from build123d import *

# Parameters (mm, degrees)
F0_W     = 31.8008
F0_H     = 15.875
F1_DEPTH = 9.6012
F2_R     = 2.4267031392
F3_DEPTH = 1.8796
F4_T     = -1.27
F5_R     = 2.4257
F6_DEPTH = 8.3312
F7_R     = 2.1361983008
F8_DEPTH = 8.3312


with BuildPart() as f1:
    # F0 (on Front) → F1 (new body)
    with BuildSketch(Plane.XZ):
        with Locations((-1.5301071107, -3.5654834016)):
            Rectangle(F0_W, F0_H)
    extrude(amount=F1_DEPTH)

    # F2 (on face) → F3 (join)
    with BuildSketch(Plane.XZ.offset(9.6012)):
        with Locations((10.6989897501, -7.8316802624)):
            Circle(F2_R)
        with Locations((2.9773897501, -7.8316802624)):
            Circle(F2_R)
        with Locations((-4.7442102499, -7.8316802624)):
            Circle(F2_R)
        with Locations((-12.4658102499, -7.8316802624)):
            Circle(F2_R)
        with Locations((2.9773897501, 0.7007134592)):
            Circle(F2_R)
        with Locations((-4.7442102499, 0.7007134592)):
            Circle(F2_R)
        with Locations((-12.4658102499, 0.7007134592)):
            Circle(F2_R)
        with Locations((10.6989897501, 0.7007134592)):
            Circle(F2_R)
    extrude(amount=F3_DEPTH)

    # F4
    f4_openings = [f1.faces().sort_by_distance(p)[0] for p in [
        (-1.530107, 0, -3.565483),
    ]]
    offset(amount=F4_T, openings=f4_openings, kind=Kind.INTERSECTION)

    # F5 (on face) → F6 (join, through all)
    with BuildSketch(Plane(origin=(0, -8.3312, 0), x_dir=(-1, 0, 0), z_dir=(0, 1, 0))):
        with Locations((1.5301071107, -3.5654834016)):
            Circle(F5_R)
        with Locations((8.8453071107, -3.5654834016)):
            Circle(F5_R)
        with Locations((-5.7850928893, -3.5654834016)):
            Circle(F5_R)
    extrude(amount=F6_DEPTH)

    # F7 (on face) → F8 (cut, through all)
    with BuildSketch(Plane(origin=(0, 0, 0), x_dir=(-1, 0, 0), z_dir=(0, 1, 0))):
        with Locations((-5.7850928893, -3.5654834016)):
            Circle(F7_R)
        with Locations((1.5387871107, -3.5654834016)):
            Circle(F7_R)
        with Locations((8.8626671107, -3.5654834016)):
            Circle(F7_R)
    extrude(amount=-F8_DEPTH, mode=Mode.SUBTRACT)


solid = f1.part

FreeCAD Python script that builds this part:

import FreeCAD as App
import Part
import Sketcher
from FreeCAD import Vector
Q = App.Units.Quantity


def faces_at(feature, points):
    """Names of the faces that lie closest to the given points."""
    faces = feature.Shape.Faces
    near = lambda p: min(range(len(faces)), key=lambda i: faces[i].distToShape(Part.Vertex(*p))[0])
    return sorted({f"Face{near(p) + 1}" for p in points})

doc = App.newDocument("Part")
body = doc.addObject("PartDesign::Body", "Body")

# Sketch on XZ plane
sketch1 = body.newObject("Sketcher::SketchObject", "Sketch")
sketch1.AttachmentSupport = (doc.getObject("XZ_Plane"), [""])
sketch1.MapMode = "FlatFace"
sketch1.addGeometry([
    Part.LineSegment(Vector(-17.430507, 4.372017, 0), Vector(-17.430507, -11.502983, 0)),
    Part.LineSegment(Vector(-17.430507, -11.502983, 0), Vector(14.370293, -11.502983, 0)),
    Part.LineSegment(Vector(14.370293, -11.502983, 0), Vector(14.370293, 4.372017, 0)),
    Part.LineSegment(Vector(14.370293, 4.372017, 0), Vector(-17.430507, 4.372017, 0)),
], False)
sketch1.addConstraint([
    Sketcher.Constraint("Coincident", 0, 2, 1, 1),
    Sketcher.Constraint("Coincident", 1, 2, 2, 1),
    Sketcher.Constraint("Coincident", 2, 2, 3, 1),
    Sketcher.Constraint("Coincident", 3, 2, 0, 1),
    Sketcher.Constraint("Vertical", 0),
    Sketcher.Constraint("Horizontal", 1),
    Sketcher.Constraint("Vertical", 2),
    Sketcher.Constraint("Horizontal", 3),
    Sketcher.Constraint("DistanceX", 1, 1, 1, 2, Q("1.252 in")),
    Sketcher.Constraint("DistanceY", 0, 2, 0, 1, Q("0.625 in")),
    Sketcher.Constraint("DistanceX", 0, 2, -1, 1, Q("17.430507 mm")),
    Sketcher.Constraint("DistanceY", 0, 2, -1, 1, Q("11.502983 mm")),
])
pad1 = body.newObject("PartDesign::Pad", "Pad")
pad1.Profile = sketch1
pad1.Length = Q("0.378 in")

# Sketch on XZ plane
sketch2 = body.newObject("Sketcher::SketchObject", "Sketch001")
sketch2.AttachmentSupport = (doc.getObject("XZ_Plane"), [""])
sketch2.MapMode = "FlatFace"
sketch2.AttachmentOffset = App.Placement(Vector(0, 0, 0.378 * 25.4), App.Rotation())
sketch2.addGeometry([
    Part.Circle(Vector(10.69899, -7.83168, 0), Vector(0, 0, 1), 2.426703),  # 0
    Part.Circle(Vector(2.97739, -7.83168, 0), Vector(0, 0, 1), 2.426703),  # 1
    Part.Circle(Vector(-4.74421, -7.83168, 0), Vector(0, 0, 1), 2.426703),  # 2
    Part.Circle(Vector(-12.46581, -7.83168, 0), Vector(0, 0, 1), 2.426703),  # 3
    Part.Circle(Vector(2.97739, 0.700713, 0), Vector(0, 0, 1), 2.426703),  # 4
    Part.Circle(Vector(-4.74421, 0.700713, 0), Vector(0, 0, 1), 2.426703),  # 5
    Part.Circle(Vector(-12.46581, 0.700713, 0), Vector(0, 0, 1), 2.426703),  # 6
    Part.Circle(Vector(10.69899, 0.700713, 0), Vector(0, 0, 1), 2.426703),  # 7
], False)
sketch2.addConstraint([
    Sketcher.Constraint("Equal", 0, 1),
    Sketcher.Constraint("Equal", 1, 2),
    Sketcher.Constraint("Equal", 2, 3),
    Sketcher.Constraint("Equal", 3, 4),
    Sketcher.Constraint("Equal", 4, 5),
    Sketcher.Constraint("Equal", 5, 6),
    Sketcher.Constraint("Equal", 6, 7),
    Sketcher.Constraint("Horizontal", 0, 3, 1, 3),
    Sketcher.Constraint("Horizontal", 1, 3, 2, 3),
    Sketcher.Constraint("Horizontal", 2, 3, 3, 3),
    Sketcher.Constraint("Horizontal", 4, 3, 5, 3),
    Sketcher.Constraint("Horizontal", 5, 3, 6, 3),
    Sketcher.Constraint("Horizontal", 6, 3, 7, 3),
    Sketcher.Constraint("Vertical", 1, 3, 4, 3),
    Sketcher.Constraint("Vertical", 2, 3, 5, 3),
    Sketcher.Constraint("Vertical", 3, 3, 6, 3),
    Sketcher.Constraint("Vertical", 0, 3, 7, 3),
    Sketcher.Constraint("DistanceX", 1, 3, 0, 3, Q("0.304 in")),
    Sketcher.Constraint("DistanceX", 2, 3, 1, 3, Q("0.304 in")),
    Sketcher.Constraint("DistanceX", 3, 3, 2, 3, Q("0.304 in")),
    Sketcher.Constraint("Diameter", 0, Q("4.853406 mm")),
    Sketcher.Constraint("DistanceX", -1, 1, 0, 3, Q("10.69899 mm")),
    Sketcher.Constraint("DistanceY", 0, 3, -1, 1, Q("7.83168 mm")),
    Sketcher.Constraint("DistanceY", -1, 1, 4, 3, Q("0.700713 mm")),
])
pad2 = body.newObject("PartDesign::Pad", "Pad001")
pad2.Profile = sketch2
pad2.Length = Q("0.074 in")
doc.recompute()

thickness = body.newObject("PartDesign::Thickness", "Thickness")
thickness.Base = (pad2, faces_at(pad2, [(-1.53, 0, -3.565)]))
thickness.Value = Q("0.05 in")
thickness.Reversed = True
thickness.Join = "Intersection"

# Sketch on XZ plane
sketch3 = body.newObject("Sketcher::SketchObject", "Sketch002")
sketch3.AttachmentSupport = (doc.getObject("XZ_Plane"), [""])
sketch3.MapMode = "FlatFace"
sketch3.AttachmentOffset = App.Placement(Vector(0, 0, 0.328 * 25.4), App.Rotation())
sketch3.addGeometry([
    Part.Circle(Vector(-1.530107, -3.565483, 0), Vector(0, 0, 1), 2.4257),
    Part.Circle(Vector(-8.845307, -3.565483, 0), Vector(0, 0, 1), 2.4257),
    Part.Circle(Vector(5.785093, -3.565483, 0), Vector(0, 0, 1), 2.4257),
], False)
sketch3.addConstraint([
    Sketcher.Constraint("Equal", 0, 1),
    Sketcher.Constraint("Equal", 1, 2),
    Sketcher.Constraint("Horizontal", 0, 3, 1, 3),
    Sketcher.Constraint("Horizontal", 1, 3, 2, 3),
    Sketcher.Constraint("Diameter", 0, Q("0.191 in")),
    Sketcher.Constraint("DistanceX", 1, 3, 0, 3, Q("0.288 in")),
    Sketcher.Constraint("DistanceX", 0, 3, 2, 3, Q("0.288 in")),
    Sketcher.Constraint("DistanceX", 0, 3, -1, 1, Q("1.530107 mm")),
    Sketcher.Constraint("DistanceY", 0, 3, -1, 1, Q("3.565483 mm")),
])
pad3 = body.newObject("PartDesign::Pad", "Pad002")
pad3.Profile = sketch3
pad3.Length = Q("0.328 in")
pad3.Reversed = True

# Sketch on XZ plane
sketch4 = body.newObject("Sketcher::SketchObject", "Sketch003")
sketch4.AttachmentSupport = (doc.getObject("XZ_Plane"), [""])
sketch4.MapMode = "FlatFace"
sketch4.addGeometry([
    Part.Circle(Vector(5.785093, -3.565483, 0), Vector(0, 0, 1), 2.136198),
    Part.Circle(Vector(-1.538787, -3.565483, 0), Vector(0, 0, 1), 2.136198),
    Part.Circle(Vector(-8.862667, -3.565483, 0), Vector(0, 0, 1), 2.136198),
], False)
sketch4.addConstraint([
    Sketcher.Constraint("Equal", 0, 1),
    Sketcher.Constraint("Equal", 1, 2),
    Sketcher.Constraint("Horizontal", 0, 3, 1, 3),
    Sketcher.Constraint("Horizontal", 1, 3, 2, 3),
    Sketcher.Constraint("Diameter", 0, Q("4.272397 mm")),
    Sketcher.Constraint("DistanceX", 1, 3, 0, 3, Q("7.32388 mm")),
    Sketcher.Constraint("DistanceX", 2, 3, 1, 3, Q("7.32388 mm")),
    Sketcher.Constraint("DistanceX", -1, 1, 0, 3, Q("5.785093 mm")),
    Sketcher.Constraint("DistanceY", 0, 3, -1, 1, Q("3.565483 mm")),
])
pocket1 = body.newObject("PartDesign::Pocket", "Pocket")
pocket1.Profile = sketch4
pocket1.Length = Q("0.328 in")
pocket1.Reversed = True

doc.recompute()
